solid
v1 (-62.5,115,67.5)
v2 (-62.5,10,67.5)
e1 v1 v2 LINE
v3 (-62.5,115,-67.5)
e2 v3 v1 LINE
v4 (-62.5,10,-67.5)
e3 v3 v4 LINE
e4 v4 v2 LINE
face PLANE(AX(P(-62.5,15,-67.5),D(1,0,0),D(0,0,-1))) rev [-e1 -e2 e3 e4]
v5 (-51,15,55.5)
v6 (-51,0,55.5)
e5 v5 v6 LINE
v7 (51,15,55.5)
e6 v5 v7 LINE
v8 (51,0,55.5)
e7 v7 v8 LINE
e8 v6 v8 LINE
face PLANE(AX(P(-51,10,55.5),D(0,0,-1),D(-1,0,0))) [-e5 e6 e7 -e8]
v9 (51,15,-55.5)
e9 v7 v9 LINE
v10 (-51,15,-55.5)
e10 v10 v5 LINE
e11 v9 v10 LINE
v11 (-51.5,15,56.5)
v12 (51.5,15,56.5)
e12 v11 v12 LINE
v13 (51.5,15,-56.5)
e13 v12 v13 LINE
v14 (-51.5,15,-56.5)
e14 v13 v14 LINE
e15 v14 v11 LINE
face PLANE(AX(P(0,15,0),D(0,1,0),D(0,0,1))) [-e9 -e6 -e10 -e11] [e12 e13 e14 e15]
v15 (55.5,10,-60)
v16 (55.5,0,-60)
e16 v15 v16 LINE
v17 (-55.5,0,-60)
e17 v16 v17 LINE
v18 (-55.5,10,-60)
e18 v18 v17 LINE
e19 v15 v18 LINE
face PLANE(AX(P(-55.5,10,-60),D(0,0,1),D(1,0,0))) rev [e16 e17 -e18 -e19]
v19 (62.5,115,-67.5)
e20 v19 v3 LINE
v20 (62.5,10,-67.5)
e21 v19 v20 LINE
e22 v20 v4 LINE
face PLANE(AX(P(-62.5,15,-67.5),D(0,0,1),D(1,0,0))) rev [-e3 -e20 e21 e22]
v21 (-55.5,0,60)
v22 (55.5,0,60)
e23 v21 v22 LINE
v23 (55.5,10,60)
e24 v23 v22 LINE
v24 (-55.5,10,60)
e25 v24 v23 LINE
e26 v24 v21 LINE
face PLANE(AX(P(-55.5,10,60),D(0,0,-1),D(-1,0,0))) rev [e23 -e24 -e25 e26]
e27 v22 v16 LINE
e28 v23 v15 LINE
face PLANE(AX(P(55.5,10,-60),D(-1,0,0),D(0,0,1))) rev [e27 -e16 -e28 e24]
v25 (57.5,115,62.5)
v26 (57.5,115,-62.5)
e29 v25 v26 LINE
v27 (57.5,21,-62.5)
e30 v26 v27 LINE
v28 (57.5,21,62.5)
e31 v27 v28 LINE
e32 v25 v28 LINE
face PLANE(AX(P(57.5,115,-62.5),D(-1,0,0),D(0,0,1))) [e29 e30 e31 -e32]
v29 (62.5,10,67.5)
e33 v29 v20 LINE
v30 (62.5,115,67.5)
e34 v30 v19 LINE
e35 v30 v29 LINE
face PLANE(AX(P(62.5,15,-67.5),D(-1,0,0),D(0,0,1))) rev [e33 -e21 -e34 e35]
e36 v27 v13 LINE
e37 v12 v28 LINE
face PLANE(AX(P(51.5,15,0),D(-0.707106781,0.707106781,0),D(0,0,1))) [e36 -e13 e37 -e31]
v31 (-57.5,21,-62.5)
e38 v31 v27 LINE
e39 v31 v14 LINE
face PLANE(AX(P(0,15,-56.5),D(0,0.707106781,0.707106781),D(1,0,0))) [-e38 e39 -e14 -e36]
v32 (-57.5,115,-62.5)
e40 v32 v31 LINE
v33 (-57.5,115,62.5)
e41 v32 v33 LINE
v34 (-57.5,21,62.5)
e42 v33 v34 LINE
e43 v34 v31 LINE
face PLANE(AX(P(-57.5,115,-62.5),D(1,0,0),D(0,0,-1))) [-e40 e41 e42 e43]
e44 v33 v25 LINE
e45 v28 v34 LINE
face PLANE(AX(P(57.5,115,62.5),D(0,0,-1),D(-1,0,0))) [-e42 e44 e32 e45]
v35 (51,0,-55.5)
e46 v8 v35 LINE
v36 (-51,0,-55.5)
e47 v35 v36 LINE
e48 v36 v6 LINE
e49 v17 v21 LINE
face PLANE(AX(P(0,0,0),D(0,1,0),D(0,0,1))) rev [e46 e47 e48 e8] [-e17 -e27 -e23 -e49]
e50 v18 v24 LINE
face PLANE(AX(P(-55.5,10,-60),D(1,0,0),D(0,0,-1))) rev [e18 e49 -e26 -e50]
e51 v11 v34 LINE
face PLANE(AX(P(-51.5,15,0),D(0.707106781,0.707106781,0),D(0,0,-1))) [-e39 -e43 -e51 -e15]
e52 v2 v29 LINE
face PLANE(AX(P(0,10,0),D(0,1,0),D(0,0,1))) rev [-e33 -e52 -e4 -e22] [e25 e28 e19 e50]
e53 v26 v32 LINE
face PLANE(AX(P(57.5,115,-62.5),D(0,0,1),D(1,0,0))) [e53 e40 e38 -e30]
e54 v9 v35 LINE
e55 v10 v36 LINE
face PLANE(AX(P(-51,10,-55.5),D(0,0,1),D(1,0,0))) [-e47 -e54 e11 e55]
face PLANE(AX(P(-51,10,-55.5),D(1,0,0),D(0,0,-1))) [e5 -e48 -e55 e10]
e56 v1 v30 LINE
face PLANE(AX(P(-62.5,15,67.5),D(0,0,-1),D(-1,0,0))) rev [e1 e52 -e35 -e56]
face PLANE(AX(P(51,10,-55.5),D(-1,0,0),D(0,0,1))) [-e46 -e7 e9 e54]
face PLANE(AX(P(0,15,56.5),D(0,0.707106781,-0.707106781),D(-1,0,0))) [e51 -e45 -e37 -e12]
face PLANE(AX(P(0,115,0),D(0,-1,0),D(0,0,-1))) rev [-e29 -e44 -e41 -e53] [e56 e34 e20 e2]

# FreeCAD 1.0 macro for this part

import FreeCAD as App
import Part
import Sketcher

V = App.Vector
Q = App.Units.Quantity


def edges_at(feature, points):
    """Names of the edges that pass closest to the given points."""
    edges = feature.Shape.Edges
    near = lambda p: min(range(len(edges)), key=lambda i: edges[i].distToShape(Part.Vertex(*p))[0])
    return sorted({f"Edge{near(p) + 1}" for p in points})

doc = App.newDocument("Part")
body = doc.addObject("PartDesign::Body", "Body")

# Sketch on XZ plane
sketch1 = body.newObject("Sketcher::SketchObject", "Sketch")
sketch1.AttachmentSupport = (doc.getObject("XZ_Plane"), [""])
sketch1.MapMode = "FlatFace"
sketch1.addGeometry([
    Part.LineSegment(V(-55.5, -60, 0), V(-55.5, 60, 0)),  # 0
    Part.LineSegment(V(-55.5, 60, 0), V(55.5, 60, 0)),  # 1
    Part.LineSegment(V(55.5, 60, 0), V(55.5, -60, 0)),  # 2
    Part.LineSegment(V(55.5, -60, 0), V(-55.5, -60, 0)),  # 3
    Part.LineSegment(V(51, 55.5, 0), V(-51, 55.5, 0)),  # 4
    Part.LineSegment(V(-51, 55.5, 0), V(-51, -55.5, 0)),  # 5
    Part.LineSegment(V(-51, -55.5, 0), V(51, -55.5, 0)),  # 6
    Part.LineSegment(V(51, -55.5, 0), V(51, 55.5, 0)),  # 7
], False)
sketch1.addConstraint([
    Sketcher.Constraint("Coincident", 0, 2, 1, 1),
    Sketcher.Constraint("Coincident", 1, 2, 2, 1),
    Sketcher.Constraint("Coincident", 2, 2, 3, 1),
    Sketcher.Constraint("Coincident", 3, 2, 0, 1),
    Sketcher.Constraint("Coincident", 4, 2, 5, 1),
    Sketcher.Constraint("Coincident", 5, 2, 6, 1),
    Sketcher.Constraint("Coincident", 6, 2, 7, 1),
    Sketcher.Constraint("Coincident", 7, 2, 4, 1),
    Sketcher.Constraint("Vertical", 0),
    Sketcher.Constraint("Horizontal", 1),
    Sketcher.Constraint("Vertical", 2),
    Sketcher.Constraint("Horizontal", 3),
    Sketcher.Constraint("Horizontal", 4),
    Sketcher.Constraint("Vertical", 5),
    Sketcher.Constraint("Horizontal", 6),
    Sketcher.Constraint("Vertical", 7),
    Sketcher.Constraint("Symmetric", 0, 2, 2, 2, -1, 1),
    Sketcher.Constraint("Symmetric", 4, 2, 6, 2, -1, 1),
    Sketcher.Constraint("Equal", 3, 5),
    Sketcher.Constraint("DistanceX", 1, 1, 1, 2, Q("111 mm")),
    Sketcher.Constraint("DistanceX", 4, 2, 4, 1, Q("102 mm")),
    Sketcher.Constraint("DistanceY", 0, 1, 0, 2, Q("120 mm")),
])
pad1 = body.newObject("PartDesign::Pad", "Pad")
pad1.Profile = sketch1
pad1.Length = 10
pad1.Reversed = True

# Sketch on XZ plane
sketch2 = body.newObject("Sketcher::SketchObject", "Sketch001")
sketch2.AttachmentSupport = (doc.getObject("XZ_Plane"), [""])
sketch2.MapMode = "FlatFace"
sketch2.AttachmentOffset = App.Placement(V(0, 0, -10), App.Rotation())
sketch2.addGeometry([
    Part.LineSegment(V(-62.5, -67.5, 0), V(-62.5, 67.5, 0)),  # 0
    Part.LineSegment(V(-62.5, 67.5, 0), V(62.5, 67.5, 0)),  # 1
    Part.LineSegment(V(62.5, 67.5, 0), V(62.5, -67.5, 0)),  # 2
    Part.LineSegment(V(62.5, -67.5, 0), V(-62.5, -67.5, 0)),  # 3
    Part.LineSegment(V(51, 55.5, 0), V(-51, 55.5, 0)),  # 4
    Part.LineSegment(V(-51, 55.5, 0), V(-51, -55.5, 0)),  # 5
    Part.LineSegment(V(-51, -55.5, 0), V(51, -55.5, 0)),  # 6
    Part.LineSegment(V(51, -55.5, 0), V(51, 55.5, 0)),  # 7
], False)
sketch2.addConstraint([
    Sketcher.Constraint("Coincident", 0, 2, 1, 1),
    Sketcher.Constraint("Coincident", 1, 2, 2, 1),
    Sketcher.Constraint("Coincident", 2, 2, 3, 1),
    Sketcher.Constraint("Coincident", 3, 2, 0, 1),
    Sketcher.Constraint("Coincident", 4, 2, 5, 1),
    Sketcher.Constraint("Coincident", 5, 2, 6, 1),
    Sketcher.Constraint("Coincident", 6, 2, 7, 1),
    Sketcher.Constraint("Coincident", 7, 2, 4, 1),
    Sketcher.Constraint("Vertical", 0),
    Sketcher.Constraint("Horizontal", 1),
    Sketcher.Constraint("Vertical", 2),
    Sketcher.Constraint("Horizontal", 3),
    Sketcher.Constraint("Horizontal", 4),
    Sketcher.Constraint("Vertical", 5),
    Sketcher.Constraint("Horizontal", 6),
    Sketcher.Constraint("Vertical", 7),
    Sketcher.Constraint("Symmetric", 0, 2, 2, 2, -1, 1),
    Sketcher.Constraint("Symmetric", 4, 2, 6, 2, -1, 1),
    Sketcher.Constraint("DistanceX", 1, 1, 1, 2, Q("125 mm")),
    Sketcher.Constraint("DistanceX", 4, 2, 4, 1, Q("102 mm")),
    Sketcher.Constraint("DistanceY", 0, 1, 0, 2, Q("135 mm")),
    Sketcher.Constraint("DistanceY", 5, 2, 5, 1, Q("111 mm")),
])
pad2 = body.newObject("PartDesign::Pad", "Pad001")
pad2.Profile = sketch2
pad2.Length = 5
pad2.Reversed = True

# Sketch on XZ plane
sketch3 = body.newObject("Sketcher::SketchObject", "Sketch002")
sketch3.AttachmentSupport = (doc.getObject("XZ_Plane"), [""])
sketch3.MapMode = "FlatFace"
sketch3.AttachmentOffset = App.Placement(V(0, 0, -15), App.Rotation())
sketch3.addGeometry([
    Part.LineSegment(V(-62.5, -67.5, 0), V(-62.5, 67.5, 0)),  # 0
    Part.LineSegment(V(-62.5, 67.5, 0), V(62.5, 67.5, 0)),  # 1
    Part.LineSegment(V(62.5, 67.5, 0), V(62.5, -67.5, 0)),  # 2
    Part.LineSegment(V(62.5, -67.5, 0), V(-62.5, -67.5, 0)),  # 3
    Part.LineSegment(V(57.5, 62.5, 0), V(-57.5, 62.5, 0)),  # 4
    Part.LineSegment(V(-57.5, 62.5, 0), V(-57.5, -62.5, 0)),  # 5
    Part.LineSegment(V(-57.5, -62.5, 0), V(57.5, -62.5, 0)),  # 6
    Part.LineSegment(V(57.5, -62.5, 0), V(57.5, 62.5, 0)),  # 7
], False)
sketch3.addConstraint([
    Sketcher.Constraint("Coincident", 0, 2, 1, 1),
    Sketcher.Constraint("Coincident", 1, 2, 2, 1),
    Sketcher.Constraint("Coincident", 2, 2, 3, 1),
    Sketcher.Constraint("Coincident", 3, 2, 0, 1),
    Sketcher.Constraint("Coincident", 4, 2, 5, 1),
    Sketcher.Constraint("Coincident", 5, 2, 6, 1),
    Sketcher.Constraint("Coincident", 6, 2, 7, 1),
    Sketcher.Constraint("Coincident", 7, 2, 4, 1),
    Sketcher.Constraint("Vertical", 0),
    Sketcher.Constraint("Horizontal", 1),
    Sketcher.Constraint("Vertical", 2),
    Sketcher.Constraint("Horizontal", 3),
    Sketcher.Constraint("Horizontal", 4),
    Sketcher.Constraint("Vertical", 5),
    Sketcher.Constraint("Horizontal", 6),
    Sketcher.Constraint("Vertical", 7),
    Sketcher.Constraint("Symmetric", 0, 2, 2, 2, -1, 1),
    Sketcher.Constraint("Symmetric", 4, 2, 6, 2, -1, 1),
    Sketcher.Constraint("Equal", 3, 5),
    Sketcher.Constraint("DistanceX", 1, 1, 1, 2, Q("125 mm")),
    Sketcher.Constraint("DistanceX", 4, 2, 4, 1, Q("115 mm")),
    Sketcher.Constraint("DistanceY", 0, 1, 0, 2, Q("135 mm")),
])
pad3 = body.newObject("PartDesign::Pad", "Pad002")
pad3.Profile = sketch3
pad3.Length = 100
pad3.Reversed = True
doc.recompute()

chamfer = body.newObject("PartDesign::Chamfer", "Chamfer")
chamfer.Base = (pad3, edges_at(pad3, [
    (0, 15, -62.5),
    (-57.5, 15, 0),
    (0, 15, 62.5),
    (57.5, 15, 0),
]))
chamfer.Size = 6

doc.recompute()
